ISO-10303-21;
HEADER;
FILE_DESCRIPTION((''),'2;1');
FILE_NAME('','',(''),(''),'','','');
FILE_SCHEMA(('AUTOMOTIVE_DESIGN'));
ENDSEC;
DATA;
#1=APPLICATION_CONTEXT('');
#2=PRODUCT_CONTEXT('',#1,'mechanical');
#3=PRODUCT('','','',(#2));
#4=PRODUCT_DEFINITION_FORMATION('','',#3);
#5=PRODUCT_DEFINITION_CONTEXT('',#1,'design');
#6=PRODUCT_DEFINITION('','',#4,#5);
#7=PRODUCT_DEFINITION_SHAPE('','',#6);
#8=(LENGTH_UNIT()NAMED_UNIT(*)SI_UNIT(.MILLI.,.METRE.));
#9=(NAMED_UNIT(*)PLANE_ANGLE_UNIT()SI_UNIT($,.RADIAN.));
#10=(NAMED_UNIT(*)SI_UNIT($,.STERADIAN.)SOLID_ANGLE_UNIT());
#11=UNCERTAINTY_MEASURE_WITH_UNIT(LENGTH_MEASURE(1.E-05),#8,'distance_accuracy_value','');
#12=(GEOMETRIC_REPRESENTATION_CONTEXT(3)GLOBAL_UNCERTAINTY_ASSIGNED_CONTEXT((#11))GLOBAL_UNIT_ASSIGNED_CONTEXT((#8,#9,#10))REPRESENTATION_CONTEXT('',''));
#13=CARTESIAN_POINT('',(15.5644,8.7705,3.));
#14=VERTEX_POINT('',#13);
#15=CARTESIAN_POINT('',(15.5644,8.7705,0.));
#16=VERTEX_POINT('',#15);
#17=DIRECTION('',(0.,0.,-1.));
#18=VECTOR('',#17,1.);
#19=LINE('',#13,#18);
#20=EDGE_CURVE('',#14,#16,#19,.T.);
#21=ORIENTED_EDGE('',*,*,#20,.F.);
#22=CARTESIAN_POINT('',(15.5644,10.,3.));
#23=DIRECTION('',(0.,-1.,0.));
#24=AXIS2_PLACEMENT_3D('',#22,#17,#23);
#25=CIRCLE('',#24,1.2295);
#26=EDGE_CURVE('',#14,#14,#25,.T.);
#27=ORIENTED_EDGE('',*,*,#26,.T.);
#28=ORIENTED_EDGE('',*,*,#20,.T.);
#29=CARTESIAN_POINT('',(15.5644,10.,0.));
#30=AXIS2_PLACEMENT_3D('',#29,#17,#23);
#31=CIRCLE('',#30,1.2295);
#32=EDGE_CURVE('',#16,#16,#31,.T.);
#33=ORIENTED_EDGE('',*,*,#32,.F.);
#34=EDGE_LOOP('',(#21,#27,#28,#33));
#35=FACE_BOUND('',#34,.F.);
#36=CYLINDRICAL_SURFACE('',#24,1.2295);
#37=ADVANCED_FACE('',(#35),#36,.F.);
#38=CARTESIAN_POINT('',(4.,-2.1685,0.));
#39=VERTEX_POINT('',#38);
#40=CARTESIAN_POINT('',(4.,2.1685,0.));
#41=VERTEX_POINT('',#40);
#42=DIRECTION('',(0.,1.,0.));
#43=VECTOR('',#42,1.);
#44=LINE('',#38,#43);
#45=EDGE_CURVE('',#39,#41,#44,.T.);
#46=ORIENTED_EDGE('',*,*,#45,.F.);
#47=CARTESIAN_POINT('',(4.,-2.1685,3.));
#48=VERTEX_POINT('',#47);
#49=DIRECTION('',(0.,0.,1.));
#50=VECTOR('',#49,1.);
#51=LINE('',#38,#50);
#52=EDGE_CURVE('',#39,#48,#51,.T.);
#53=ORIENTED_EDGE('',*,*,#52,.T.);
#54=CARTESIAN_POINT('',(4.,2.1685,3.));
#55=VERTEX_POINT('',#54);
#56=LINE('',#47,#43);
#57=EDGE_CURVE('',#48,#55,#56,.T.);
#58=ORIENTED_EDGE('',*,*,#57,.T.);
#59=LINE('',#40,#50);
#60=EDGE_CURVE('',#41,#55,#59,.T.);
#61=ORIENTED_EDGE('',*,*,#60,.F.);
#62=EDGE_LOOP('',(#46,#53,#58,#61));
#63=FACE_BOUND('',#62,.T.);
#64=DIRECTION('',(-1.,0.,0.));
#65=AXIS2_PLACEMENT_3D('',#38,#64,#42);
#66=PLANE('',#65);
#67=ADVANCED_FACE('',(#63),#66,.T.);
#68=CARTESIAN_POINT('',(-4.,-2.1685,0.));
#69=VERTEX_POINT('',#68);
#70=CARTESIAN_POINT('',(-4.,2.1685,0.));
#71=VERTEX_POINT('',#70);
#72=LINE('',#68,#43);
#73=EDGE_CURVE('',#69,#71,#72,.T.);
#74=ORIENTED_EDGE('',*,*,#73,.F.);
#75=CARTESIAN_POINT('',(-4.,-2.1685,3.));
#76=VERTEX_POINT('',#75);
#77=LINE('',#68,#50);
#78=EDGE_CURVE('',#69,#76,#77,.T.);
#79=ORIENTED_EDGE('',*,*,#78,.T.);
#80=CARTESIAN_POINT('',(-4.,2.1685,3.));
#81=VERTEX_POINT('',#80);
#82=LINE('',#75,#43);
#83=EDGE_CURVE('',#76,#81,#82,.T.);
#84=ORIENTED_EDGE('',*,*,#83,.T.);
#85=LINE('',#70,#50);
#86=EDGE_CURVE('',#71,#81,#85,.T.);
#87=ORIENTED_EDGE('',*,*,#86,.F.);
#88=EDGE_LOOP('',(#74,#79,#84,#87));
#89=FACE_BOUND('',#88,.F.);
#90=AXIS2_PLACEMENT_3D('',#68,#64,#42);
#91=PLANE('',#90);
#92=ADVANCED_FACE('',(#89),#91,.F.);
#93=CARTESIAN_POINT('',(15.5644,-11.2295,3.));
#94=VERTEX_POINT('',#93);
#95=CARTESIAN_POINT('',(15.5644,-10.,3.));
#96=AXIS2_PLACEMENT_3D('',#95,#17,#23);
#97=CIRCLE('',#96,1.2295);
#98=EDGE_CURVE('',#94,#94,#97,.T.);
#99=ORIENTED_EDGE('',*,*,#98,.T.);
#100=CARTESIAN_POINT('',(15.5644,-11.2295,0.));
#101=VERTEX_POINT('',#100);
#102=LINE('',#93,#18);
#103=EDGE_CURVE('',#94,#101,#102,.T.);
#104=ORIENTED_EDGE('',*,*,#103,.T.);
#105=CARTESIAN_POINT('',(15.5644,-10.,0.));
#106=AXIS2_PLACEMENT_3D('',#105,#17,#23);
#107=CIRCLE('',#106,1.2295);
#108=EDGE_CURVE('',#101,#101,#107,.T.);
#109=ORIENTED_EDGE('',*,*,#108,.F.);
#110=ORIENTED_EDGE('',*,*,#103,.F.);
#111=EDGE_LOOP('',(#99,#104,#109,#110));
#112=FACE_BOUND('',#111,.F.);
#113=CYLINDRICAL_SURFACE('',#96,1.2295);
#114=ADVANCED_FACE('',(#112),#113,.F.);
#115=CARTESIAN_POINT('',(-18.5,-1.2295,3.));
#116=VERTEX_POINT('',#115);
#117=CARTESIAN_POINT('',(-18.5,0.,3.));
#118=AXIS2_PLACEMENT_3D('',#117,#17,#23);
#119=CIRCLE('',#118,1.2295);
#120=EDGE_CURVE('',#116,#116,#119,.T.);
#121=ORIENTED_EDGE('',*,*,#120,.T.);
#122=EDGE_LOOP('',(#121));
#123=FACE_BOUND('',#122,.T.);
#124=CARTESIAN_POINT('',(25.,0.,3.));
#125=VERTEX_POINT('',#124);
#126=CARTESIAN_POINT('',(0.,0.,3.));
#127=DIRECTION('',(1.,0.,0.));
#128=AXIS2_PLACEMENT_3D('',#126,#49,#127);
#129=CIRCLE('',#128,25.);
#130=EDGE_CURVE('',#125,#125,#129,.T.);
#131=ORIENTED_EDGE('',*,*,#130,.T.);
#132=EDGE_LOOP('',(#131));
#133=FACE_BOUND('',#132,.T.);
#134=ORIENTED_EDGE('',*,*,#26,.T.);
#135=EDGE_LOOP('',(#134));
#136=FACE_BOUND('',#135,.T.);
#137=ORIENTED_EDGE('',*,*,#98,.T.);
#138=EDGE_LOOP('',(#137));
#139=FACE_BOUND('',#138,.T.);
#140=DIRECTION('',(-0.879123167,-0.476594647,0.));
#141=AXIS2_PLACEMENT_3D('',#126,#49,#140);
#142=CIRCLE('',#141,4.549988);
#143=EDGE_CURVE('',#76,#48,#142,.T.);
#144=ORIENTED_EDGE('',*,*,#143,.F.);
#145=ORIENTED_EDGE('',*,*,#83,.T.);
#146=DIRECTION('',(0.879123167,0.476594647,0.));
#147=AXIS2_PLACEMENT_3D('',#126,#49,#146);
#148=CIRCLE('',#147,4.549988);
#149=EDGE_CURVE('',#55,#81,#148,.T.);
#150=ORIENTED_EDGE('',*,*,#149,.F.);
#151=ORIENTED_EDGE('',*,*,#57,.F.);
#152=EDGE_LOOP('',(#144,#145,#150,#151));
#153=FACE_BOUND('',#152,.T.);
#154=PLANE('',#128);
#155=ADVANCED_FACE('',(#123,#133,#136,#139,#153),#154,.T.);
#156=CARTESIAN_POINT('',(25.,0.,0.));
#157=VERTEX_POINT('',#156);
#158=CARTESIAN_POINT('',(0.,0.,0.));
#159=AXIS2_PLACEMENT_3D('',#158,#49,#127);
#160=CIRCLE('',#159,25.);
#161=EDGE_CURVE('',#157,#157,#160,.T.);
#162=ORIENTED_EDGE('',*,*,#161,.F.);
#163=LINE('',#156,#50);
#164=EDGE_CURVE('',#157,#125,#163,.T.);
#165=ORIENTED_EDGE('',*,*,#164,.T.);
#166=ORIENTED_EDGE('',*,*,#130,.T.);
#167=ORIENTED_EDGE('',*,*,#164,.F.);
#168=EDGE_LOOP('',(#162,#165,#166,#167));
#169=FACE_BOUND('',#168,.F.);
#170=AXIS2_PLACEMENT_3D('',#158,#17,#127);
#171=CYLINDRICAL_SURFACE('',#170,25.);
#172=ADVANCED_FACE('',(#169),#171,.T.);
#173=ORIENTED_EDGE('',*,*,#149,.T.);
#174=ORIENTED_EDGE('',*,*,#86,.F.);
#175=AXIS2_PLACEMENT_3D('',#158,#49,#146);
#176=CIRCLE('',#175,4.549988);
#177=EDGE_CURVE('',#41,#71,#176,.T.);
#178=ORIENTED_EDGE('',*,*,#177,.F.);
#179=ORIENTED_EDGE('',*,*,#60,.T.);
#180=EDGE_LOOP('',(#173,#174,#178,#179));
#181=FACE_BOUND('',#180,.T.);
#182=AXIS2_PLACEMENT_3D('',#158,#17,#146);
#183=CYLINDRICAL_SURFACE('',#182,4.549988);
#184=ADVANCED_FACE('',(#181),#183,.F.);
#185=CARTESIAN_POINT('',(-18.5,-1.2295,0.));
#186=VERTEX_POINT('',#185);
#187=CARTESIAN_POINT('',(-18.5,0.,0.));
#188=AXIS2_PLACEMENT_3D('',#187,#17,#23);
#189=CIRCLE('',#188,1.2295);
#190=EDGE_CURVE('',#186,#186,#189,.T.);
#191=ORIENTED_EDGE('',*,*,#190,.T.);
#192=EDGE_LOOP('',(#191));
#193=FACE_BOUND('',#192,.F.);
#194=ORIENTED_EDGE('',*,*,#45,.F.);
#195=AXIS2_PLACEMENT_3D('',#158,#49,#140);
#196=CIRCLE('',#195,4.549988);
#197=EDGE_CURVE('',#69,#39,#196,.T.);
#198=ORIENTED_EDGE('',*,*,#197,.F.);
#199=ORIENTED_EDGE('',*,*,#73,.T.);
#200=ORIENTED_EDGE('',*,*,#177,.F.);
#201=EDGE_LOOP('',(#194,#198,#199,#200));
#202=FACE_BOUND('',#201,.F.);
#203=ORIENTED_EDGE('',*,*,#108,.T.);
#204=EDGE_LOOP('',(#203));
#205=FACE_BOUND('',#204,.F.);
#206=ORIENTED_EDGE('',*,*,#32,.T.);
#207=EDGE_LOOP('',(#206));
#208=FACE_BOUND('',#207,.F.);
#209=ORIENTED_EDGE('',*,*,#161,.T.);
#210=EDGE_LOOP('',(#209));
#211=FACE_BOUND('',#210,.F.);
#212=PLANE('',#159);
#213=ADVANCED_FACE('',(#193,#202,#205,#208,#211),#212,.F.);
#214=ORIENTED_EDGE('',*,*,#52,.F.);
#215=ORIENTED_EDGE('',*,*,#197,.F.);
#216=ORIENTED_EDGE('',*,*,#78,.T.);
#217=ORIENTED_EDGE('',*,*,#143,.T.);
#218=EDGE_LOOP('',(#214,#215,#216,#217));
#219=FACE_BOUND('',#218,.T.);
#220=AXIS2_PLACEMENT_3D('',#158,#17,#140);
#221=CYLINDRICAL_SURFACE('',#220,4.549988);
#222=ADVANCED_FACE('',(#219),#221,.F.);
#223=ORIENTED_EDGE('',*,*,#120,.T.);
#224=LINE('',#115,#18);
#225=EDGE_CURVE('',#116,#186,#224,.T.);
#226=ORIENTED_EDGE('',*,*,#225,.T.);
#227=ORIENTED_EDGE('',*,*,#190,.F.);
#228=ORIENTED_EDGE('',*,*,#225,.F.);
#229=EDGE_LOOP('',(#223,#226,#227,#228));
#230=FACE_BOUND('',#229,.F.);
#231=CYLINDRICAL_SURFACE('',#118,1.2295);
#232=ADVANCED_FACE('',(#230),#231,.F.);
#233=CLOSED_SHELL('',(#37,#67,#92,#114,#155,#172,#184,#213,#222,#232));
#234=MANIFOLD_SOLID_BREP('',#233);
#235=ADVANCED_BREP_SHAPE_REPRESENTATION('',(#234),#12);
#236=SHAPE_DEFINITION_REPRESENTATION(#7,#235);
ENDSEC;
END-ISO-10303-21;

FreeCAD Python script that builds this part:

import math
import FreeCAD as App
import Part
import Sketcher

V = App.Vector

doc = App.newDocument("Part")
body = doc.addObject("PartDesign::Body", "Body")

# Sketch on XY plane
sketch1 = doc.addObject("Sketcher::SketchObject", "Sketch")
body.addObject(sketch1)
sketch1.AttachmentSupport = (doc.XY_Plane, [""])
sketch1.MapMode = "FlatFace"
sketch1.addGeometry([
    Part.Circle(V(0, 0, 0), V(0, 0, 1), 25),  # 0
    Part.ArcOfCircle(Part.Circle(V(0, 0, 0), V(0, 0, 1), 4.549988), math.radians(28.463228), math.radians(151.536772)),  # 1
    Part.LineSegment(V(4, 2.1685, 0), V(4, -2.1685, 0)),  # 2
    Part.ArcOfCircle(Part.Circle(V(0, 0, 0), V(0, 0, 1), 4.549988), math.radians(-151.536772), math.radians(-28.463228)),  # 3
    Part.LineSegment(V(-4, -2.1685, 0), V(-4, 2.1685, 0)),  # 4
], False)
sketch1.addConstraint([
    Sketcher.Constraint("Coincident", 1, 1, 2, 1),
    Sketcher.Constraint("Coincident", 2, 2, 3, 2),
    Sketcher.Constraint("Coincident", 3, 1, 4, 1),
    Sketcher.Constraint("Coincident", 4, 2, 1, 2),
    Sketcher.Constraint("Vertical", 2),
    Sketcher.Constraint("Vertical", 4),
    Sketcher.Constraint("Coincident", 0, 3, -1, 1),
    Sketcher.Constraint("Coincident", 1, 3, -1, 1),
    Sketcher.Constraint("Coincident", 3, 3, -1, 1),
    Sketcher.Constraint("Equal", 1, 3),
    Sketcher.Constraint("Horizontal", 2, 2, 3, 1),
    Sketcher.Constraint("Diameter", 0, 50.0),
    Sketcher.Constraint("Radius", 1, 4.55),
    Sketcher.Constraint("DistanceX", 3, 1, 2, 2, 8.0),
])
pad1 = doc.addObject("PartDesign::Pad", "Pad")
body.addObject(pad1)
pad1.Profile = sketch1
pad1.Length = 3

# Sketch on XY plane
sketch2 = doc.addObject("Sketcher::SketchObject", "Sketch001")
body.addObject(sketch2)
sketch2.AttachmentSupport = (doc.XY_Plane, [""])
sketch2.MapMode = "FlatFace"
sketch2.AttachmentOffset = App.Placement(V(0, 0, 3), App.Rotation())
sketch2.addGeometry([
    Part.Circle(V(-18.5, 0, 0), V(0, 0, 1), 1.2295),
    Part.Circle(V(15.5644, -10, 0), V(0, 0, 1), 1.2295),
    Part.Circle(V(15.5644, 10, 0), V(0, 0, 1), 1.2295),
], False)
sketch2.addConstraint([
    Sketcher.Constraint("Equal", 0, 1),
    Sketcher.Constraint("Equal", 1, 2),
    Sketcher.Constraint("Symmetric", 1, 3, 2, 3, -1),
    Sketcher.Constraint("PointOnObject", 0, 3, -1),
    Sketcher.Constraint("Diameter", 0, 2.459),
    Sketcher.Constraint("DistanceY", 1, 3, -1, 1, 10.0),
    Sketcher.Constraint("DistanceX", 0, 3, -1, 1, 18.5),
    Sketcher.Constraint("DistanceX", -1, 1, 1, 3, 15.5644),
])
doc.recompute()
hole = doc.addObject("PartDesign::Hole", "Hole")
body.addObject(hole)
hole.Profile = sketch2
hole.ThreadType = "None"
hole.Diameter = 2.459
hole.DepthType = "ThroughAll"

doc.recompute()
